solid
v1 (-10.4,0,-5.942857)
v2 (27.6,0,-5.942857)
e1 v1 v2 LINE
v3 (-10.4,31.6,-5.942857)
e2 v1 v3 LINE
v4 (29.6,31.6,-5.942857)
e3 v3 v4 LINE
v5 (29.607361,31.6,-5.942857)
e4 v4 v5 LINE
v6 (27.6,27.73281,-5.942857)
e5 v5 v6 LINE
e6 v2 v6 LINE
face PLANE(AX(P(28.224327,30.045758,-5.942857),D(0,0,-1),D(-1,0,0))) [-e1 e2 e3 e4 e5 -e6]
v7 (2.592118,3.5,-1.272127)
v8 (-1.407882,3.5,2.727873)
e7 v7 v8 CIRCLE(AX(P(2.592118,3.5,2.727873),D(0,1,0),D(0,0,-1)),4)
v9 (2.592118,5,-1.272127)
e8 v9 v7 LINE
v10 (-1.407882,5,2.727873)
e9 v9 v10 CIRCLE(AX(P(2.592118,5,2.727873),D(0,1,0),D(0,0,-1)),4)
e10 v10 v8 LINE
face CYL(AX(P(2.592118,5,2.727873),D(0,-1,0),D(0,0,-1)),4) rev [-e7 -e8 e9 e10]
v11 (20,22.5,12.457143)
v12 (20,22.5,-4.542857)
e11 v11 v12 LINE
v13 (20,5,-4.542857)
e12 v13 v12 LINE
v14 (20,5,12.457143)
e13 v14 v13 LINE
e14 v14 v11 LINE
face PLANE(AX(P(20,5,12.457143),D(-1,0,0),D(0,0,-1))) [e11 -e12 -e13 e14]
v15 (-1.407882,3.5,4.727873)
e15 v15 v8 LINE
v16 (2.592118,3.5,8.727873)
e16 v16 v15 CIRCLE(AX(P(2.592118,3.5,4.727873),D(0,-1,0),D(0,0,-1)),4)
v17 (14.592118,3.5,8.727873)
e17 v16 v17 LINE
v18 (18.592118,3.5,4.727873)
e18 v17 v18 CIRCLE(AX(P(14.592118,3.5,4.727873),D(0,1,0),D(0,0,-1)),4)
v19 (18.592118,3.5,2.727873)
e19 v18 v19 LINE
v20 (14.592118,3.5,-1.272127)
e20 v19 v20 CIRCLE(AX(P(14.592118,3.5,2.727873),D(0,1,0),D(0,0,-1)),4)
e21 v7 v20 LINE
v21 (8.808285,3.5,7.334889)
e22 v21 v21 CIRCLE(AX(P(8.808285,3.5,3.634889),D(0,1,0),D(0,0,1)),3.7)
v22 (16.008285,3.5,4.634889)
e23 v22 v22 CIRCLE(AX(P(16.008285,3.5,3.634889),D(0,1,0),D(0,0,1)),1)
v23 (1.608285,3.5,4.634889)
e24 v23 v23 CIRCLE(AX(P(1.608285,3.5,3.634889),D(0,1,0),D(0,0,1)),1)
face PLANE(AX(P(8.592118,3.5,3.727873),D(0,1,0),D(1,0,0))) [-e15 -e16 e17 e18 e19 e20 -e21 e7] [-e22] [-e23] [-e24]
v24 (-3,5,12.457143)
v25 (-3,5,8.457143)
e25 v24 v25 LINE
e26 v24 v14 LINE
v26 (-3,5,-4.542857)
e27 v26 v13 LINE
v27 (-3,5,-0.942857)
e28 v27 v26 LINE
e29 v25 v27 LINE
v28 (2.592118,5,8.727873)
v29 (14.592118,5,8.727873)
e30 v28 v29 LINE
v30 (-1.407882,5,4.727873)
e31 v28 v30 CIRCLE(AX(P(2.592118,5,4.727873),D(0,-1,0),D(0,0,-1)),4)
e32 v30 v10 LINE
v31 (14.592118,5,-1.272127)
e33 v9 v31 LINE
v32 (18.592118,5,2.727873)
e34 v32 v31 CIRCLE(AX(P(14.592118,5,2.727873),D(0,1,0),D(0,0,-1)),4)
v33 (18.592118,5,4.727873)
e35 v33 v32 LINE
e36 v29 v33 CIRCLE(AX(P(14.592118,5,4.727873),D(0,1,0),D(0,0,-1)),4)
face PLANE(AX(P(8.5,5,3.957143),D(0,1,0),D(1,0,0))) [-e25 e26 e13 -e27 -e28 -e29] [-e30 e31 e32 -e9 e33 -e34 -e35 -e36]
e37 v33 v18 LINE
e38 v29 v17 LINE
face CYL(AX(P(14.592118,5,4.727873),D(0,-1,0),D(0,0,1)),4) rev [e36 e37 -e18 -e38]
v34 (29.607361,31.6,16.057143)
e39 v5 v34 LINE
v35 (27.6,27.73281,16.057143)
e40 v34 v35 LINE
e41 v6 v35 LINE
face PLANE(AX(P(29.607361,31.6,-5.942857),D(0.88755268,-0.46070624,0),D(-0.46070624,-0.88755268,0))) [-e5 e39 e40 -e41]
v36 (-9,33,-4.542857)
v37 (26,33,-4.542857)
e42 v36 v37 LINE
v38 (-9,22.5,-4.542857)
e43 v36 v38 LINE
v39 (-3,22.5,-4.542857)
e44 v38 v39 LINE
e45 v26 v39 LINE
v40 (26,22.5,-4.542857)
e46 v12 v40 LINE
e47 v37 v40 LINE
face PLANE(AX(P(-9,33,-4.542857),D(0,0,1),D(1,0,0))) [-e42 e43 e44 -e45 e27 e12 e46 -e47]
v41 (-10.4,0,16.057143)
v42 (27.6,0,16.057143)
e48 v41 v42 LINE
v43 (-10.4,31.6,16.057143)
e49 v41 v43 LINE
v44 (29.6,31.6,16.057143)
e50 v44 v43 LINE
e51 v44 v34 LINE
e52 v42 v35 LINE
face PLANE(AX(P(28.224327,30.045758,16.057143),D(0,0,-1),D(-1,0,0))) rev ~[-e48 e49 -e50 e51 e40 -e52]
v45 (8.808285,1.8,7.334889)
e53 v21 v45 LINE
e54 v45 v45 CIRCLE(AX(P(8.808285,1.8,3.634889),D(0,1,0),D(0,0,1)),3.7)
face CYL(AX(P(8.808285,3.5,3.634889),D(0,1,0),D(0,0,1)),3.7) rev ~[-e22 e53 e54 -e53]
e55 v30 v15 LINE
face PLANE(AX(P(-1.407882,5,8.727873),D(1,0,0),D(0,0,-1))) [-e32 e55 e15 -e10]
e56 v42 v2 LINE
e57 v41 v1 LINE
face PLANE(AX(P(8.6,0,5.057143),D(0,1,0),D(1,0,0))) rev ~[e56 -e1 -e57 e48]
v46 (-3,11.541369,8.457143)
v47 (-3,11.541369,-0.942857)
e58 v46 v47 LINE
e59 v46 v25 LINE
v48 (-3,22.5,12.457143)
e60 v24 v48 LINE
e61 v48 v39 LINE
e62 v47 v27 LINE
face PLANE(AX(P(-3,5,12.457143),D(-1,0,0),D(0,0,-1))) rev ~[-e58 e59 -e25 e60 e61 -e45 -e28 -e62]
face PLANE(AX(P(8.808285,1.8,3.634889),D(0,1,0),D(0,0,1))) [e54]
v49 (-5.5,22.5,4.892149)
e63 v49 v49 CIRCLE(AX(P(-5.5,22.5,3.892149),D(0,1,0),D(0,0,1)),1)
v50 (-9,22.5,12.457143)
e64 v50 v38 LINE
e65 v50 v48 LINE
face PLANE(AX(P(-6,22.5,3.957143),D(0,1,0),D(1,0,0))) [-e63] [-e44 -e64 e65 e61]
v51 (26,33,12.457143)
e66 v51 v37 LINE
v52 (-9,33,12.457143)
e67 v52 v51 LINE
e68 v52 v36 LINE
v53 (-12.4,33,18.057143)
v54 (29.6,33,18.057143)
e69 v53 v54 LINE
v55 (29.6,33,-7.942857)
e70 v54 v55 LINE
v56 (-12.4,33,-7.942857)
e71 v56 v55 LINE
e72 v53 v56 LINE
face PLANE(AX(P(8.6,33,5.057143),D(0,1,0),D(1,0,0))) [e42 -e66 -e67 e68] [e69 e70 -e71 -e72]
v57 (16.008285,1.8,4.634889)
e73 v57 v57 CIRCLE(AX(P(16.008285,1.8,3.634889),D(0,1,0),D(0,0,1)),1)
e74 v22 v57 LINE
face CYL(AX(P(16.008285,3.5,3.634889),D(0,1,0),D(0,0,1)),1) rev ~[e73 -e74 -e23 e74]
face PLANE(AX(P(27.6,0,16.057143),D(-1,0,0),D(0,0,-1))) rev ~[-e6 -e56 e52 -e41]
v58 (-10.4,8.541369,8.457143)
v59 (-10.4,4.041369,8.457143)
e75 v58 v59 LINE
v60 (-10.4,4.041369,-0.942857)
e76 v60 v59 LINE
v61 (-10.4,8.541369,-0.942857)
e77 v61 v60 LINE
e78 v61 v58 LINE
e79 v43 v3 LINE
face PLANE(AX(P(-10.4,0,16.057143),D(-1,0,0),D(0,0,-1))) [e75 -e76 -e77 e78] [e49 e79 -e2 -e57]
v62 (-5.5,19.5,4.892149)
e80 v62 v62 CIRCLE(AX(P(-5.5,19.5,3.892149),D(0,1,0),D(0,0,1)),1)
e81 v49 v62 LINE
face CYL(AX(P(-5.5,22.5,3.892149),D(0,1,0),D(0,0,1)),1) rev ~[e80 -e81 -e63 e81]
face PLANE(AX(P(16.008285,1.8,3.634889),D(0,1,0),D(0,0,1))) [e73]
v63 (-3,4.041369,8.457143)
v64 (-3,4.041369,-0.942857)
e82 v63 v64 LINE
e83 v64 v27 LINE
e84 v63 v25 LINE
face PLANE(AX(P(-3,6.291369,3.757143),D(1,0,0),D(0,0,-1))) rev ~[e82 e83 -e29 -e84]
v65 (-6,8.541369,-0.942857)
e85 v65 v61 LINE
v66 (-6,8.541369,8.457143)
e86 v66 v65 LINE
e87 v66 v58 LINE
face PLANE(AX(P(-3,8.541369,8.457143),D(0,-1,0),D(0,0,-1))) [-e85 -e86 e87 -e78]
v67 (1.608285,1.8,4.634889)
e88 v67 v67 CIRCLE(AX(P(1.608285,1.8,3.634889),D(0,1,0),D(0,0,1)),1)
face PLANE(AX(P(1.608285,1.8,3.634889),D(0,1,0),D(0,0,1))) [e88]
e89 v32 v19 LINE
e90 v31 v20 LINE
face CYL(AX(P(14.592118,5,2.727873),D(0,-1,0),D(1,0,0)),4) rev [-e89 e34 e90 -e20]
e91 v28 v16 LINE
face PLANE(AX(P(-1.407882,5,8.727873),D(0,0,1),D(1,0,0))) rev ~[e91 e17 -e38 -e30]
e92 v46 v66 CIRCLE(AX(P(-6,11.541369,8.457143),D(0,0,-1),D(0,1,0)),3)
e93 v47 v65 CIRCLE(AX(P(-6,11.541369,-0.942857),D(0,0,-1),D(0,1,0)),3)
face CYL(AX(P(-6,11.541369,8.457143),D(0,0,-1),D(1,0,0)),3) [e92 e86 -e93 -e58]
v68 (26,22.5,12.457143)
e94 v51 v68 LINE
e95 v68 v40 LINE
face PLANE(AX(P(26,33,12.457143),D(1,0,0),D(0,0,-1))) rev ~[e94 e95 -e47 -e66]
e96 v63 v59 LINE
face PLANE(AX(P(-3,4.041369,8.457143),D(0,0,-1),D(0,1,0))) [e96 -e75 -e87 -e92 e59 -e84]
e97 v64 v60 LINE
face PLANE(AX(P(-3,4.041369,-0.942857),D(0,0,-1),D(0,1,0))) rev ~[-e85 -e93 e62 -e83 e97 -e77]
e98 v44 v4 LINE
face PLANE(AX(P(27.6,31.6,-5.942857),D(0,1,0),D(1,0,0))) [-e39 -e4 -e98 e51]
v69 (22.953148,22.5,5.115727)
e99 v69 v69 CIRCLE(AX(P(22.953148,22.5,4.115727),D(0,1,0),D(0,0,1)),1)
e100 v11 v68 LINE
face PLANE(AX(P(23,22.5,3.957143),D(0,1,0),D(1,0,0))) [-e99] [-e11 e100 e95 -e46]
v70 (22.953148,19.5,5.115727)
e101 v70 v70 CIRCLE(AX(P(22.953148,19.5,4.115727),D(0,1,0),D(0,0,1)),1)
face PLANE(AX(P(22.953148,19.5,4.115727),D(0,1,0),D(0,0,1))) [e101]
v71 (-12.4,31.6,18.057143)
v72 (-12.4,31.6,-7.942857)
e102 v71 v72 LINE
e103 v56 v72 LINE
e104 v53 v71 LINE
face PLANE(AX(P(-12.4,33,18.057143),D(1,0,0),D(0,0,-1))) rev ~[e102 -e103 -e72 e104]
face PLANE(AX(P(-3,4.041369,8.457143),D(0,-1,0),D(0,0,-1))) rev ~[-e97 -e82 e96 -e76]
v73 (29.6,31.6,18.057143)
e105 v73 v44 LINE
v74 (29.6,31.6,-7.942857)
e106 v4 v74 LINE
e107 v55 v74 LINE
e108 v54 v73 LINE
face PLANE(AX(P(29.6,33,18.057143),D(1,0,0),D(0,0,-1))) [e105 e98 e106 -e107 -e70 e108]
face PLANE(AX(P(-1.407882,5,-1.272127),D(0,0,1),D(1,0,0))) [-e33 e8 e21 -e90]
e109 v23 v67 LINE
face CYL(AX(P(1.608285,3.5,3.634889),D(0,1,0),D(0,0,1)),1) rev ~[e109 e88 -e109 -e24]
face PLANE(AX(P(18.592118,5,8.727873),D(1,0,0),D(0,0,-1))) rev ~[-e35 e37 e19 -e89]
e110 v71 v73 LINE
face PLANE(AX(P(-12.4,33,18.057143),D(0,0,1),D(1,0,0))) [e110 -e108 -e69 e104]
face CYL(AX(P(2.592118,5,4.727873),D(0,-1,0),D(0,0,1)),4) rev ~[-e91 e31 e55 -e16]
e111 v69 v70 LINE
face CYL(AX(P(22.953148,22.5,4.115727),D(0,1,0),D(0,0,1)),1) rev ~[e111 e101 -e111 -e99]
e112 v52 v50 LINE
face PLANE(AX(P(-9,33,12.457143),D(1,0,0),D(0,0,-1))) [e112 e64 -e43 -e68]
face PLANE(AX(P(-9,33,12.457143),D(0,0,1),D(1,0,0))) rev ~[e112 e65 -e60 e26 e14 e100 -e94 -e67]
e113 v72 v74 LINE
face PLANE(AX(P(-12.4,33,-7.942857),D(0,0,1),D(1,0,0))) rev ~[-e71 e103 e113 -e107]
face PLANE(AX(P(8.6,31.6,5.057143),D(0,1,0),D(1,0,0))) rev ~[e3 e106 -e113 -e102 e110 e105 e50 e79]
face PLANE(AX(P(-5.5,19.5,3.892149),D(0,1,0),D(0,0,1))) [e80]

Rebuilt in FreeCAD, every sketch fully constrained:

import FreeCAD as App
import Part
import Sketcher


def edges_at(feature, points):
    """Names of the edges that pass closest to the given points."""
    edges = feature.Shape.Edges
    near = lambda p: min(range(len(edges)), key=lambda i: edges[i].distToShape(Part.Vertex(*p))[0])
    return sorted({f"Edge{near(p) + 1}" for p in points})


def add_polygon(sketch, points):
    """Adds a closed chain of lines whose ends are joined by coincident constraints."""
    first, n = sketch.GeometryCount, len(points)
    for a, b in zip(points, points[1:] + points[:1]):
        sketch.addGeometry(Part.LineSegment(App.Vector(*a, 0), App.Vector(*b, 0)), False)
    for i in range(n):
        sketch.addConstraint(Sketcher.Constraint("Coincident", first + i, 2, first + (i + 1) % n, 1))

doc = App.newDocument("Part")
body = doc.addObject("PartDesign::Body", "Body")

# Sketch on XZ plane
sketch1 = body.newObject("Sketcher::SketchObject", "Sketch")
sketch1.AttachmentSupport = (doc.getObject("XZ_Plane"), [""])
sketch1.MapMode = "FlatFace"
add_polygon(sketch1, [(-10.4, -5.942857), (-10.4, 16.057143), (27.6, 16.057143), (27.6, -5.942857)])  # lines 0-3
sketch1.addConstraint(Sketcher.Constraint("Vertical", 0))
sketch1.addConstraint(Sketcher.Constraint("Horizontal", 1))
sketch1.addConstraint(Sketcher.Constraint("Vertical", 2))
sketch1.addConstraint(Sketcher.Constraint("Horizontal", 3))
sketch1.addConstraint(Sketcher.Constraint("DistanceX", 1, 1, 1, 2, 38.0))
sketch1.addConstraint(Sketcher.Constraint("DistanceY", 0, 1, 0, 2, 22.0))
sketch1.addConstraint(Sketcher.Constraint("DistanceX", 0, 2, -1, 1, 10.4))
sketch1.addConstraint(Sketcher.Constraint("DistanceY", -1, 1, 0, 2, 16.057143))
pad1 = body.newObject("PartDesign::Pad", "Pad")
pad1.Profile = sketch1
pad1.Length = 33
pad1.Reversed = True

# Sketch on XZ plane
sketch2 = body.newObject("Sketcher::SketchObject", "Sketch001")
sketch2.AttachmentSupport = (doc.getObject("XZ_Plane"), [""])
sketch2.MapMode = "FlatFace"
sketch2.AttachmentOffset = App.Placement(App.Vector(0, 0, -33), App.Rotation())
add_polygon(sketch2, [(-9, -4.542857), (-9, 12.457143), (26, 12.457143), (26, -4.542857)])  # lines 0-3
sketch2.addConstraint(Sketcher.Constraint("Vertical", 0))
sketch2.addConstraint(Sketcher.Constraint("Horizontal", 1))
sketch2.addConstraint(Sketcher.Constraint("Vertical", 2))
sketch2.addConstraint(Sketcher.Constraint("Horizontal", 3))
sketch2.addConstraint(Sketcher.Constraint("DistanceX", 1, 1, 1, 2, 35.0))
sketch2.addConstraint(Sketcher.Constraint("DistanceY", 0, 1, 0, 2, 17.0))
sketch2.addConstraint(Sketcher.Constraint("DistanceX", 0, 2, -1, 1, 9.0))
sketch2.addConstraint(Sketcher.Constraint("DistanceY", -1, 1, 0, 2, 12.457143))
pocket1 = body.newObject("PartDesign::Pocket", "Pocket")
pocket1.Profile = sketch2
pocket1.Length = 28
pocket1.Reversed = True

# Sketch on XZ plane
sketch3 = body.newObject("Sketcher::SketchObject", "Sketch002")
sketch3.AttachmentSupport = (doc.getObject("XZ_Plane"), [""])
sketch3.MapMode = "FlatFace"
sketch3.AttachmentOffset = App.Placement(App.Vector(0, 0, -5), App.Rotation())
add_polygon(sketch3, [(-9, -4.542857), (-9, 12.457143), (-3, 12.457143), (-3, -4.542857)])  # lines 0-3
add_polygon(sketch3, [(20, -4.542857), (20, 12.457143), (26, 12.457143), (26, -4.542857)])  # lines 4-7
sketch3.addConstraint(Sketcher.Constraint("Vertical", 0))
sketch3.addConstraint(Sketcher.Constraint("Horizontal", 1))
sketch3.addConstraint(Sketcher.Constraint("Vertical", 2))
sketch3.addConstraint(Sketcher.Constraint("Horizontal", 3))
sketch3.addConstraint(Sketcher.Constraint("Vertical", 4))
sketch3.addConstraint(Sketcher.Constraint("Horizontal", 5))
sketch3.addConstraint(Sketcher.Constraint("Vertical", 6))
sketch3.addConstraint(Sketcher.Constraint("Horizontal", 7))
sketch3.addConstraint(Sketcher.Constraint("Horizontal", 1, 2, 4, 2))
sketch3.addConstraint(Sketcher.Constraint("Horizontal", 3, 2, 6, 2))
sketch3.addConstraint(Sketcher.Constraint("Equal", 3, 5))
sketch3.addConstraint(Sketcher.Constraint("DistanceX", 1, 1, 1, 2, 6.0))
sketch3.addConstraint(Sketcher.Constraint("DistanceY", 0, 1, 0, 2, 17.0))
sketch3.addConstraint(Sketcher.Constraint("DistanceX", 0, 2, -1, 1, 9.0))
sketch3.addConstraint(Sketcher.Constraint("DistanceX", -1, 1, 4, 2, 20.0))
sketch3.addConstraint(Sketcher.Constraint("DistanceY", -1, 1, 0, 2, 12.457143))
pad2 = body.newObject("PartDesign::Pad", "Pad001")
pad2.Profile = sketch3
pad2.Length = 17.5
pad2.Reversed = True

# Sketch on XZ plane
sketch4 = body.newObject("Sketcher::SketchObject", "Sketch003")
sketch4.AttachmentSupport = (doc.getObject("XZ_Plane"), [""])
sketch4.MapMode = "FlatFace"
sketch4.AttachmentOffset = App.Placement(App.Vector(0, 0, -33), App.Rotation())
add_polygon(sketch4, [(-12.4, -7.942857), (-12.4, 18.057143), (29.6, 18.057143), (29.6, -7.942857)])  # lines 0-3
add_polygon(sketch4, [(27.6, 16.057143), (-10.4, 16.057143), (-10.4, -5.942857), (27.6, -5.942857)])  # lines 4-7
sketch4.addConstraint(Sketcher.Constraint("Vertical", 0))
sketch4.addConstraint(Sketcher.Constraint("Horizontal", 1))
sketch4.addConstraint(Sketcher.Constraint("Vertical", 2))
sketch4.addConstraint(Sketcher.Constraint("Horizontal", 3))
sketch4.addConstraint(Sketcher.Constraint("Horizontal", 4))
sketch4.addConstraint(Sketcher.Constraint("Vertical", 5))
sketch4.addConstraint(Sketcher.Constraint("Horizontal", 6))
sketch4.addConstraint(Sketcher.Constraint("Vertical", 7))
sketch4.addConstraint(Sketcher.Constraint("DistanceX", 1, 1, 1, 2, 42.0))
sketch4.addConstraint(Sketcher.Constraint("DistanceX", 4, 2, 4, 1, 38.0))
sketch4.addConstraint(Sketcher.Constraint("DistanceY", 0, 1, 0, 2, 26.0))
sketch4.addConstraint(Sketcher.Constraint("DistanceY", 5, 2, 5, 1, 22.0))
sketch4.addConstraint(Sketcher.Constraint("DistanceX", 0, 2, 4, 2, 2.0))
sketch4.addConstraint(Sketcher.Constraint("DistanceY", 4, 2, 0, 2, 2.0))
sketch4.addConstraint(Sketcher.Constraint("DistanceX", 0, 2, -1, 1, 12.4))
sketch4.addConstraint(Sketcher.Constraint("DistanceY", -1, 1, 0, 2, 18.057143))
pad3 = body.newObject("PartDesign::Pad", "Pad002")
pad3.Profile = sketch4
pad3.Length = 1.4

# Sketch on XZ plane
sketch5 = body.newObject("Sketcher::SketchObject", "Sketch004")
sketch5.AttachmentSupport = (doc.getObject("XZ_Plane"), [""])
sketch5.MapMode = "FlatFace"
sketch5.AttachmentOffset = App.Placement(App.Vector(0, 0, -22.5), App.Rotation())
sketch5.addGeometry(Part.Circle(App.Vector(-5.5, 3.892149, 0), App.Vector(0, 0, 1), 1), False)
sketch5.addConstraint(Sketcher.Constraint("Diameter", 0, 2.0))
sketch5.addConstraint(Sketcher.Constraint("DistanceX", 0, 3, -1, 1, 5.5))
sketch5.addConstraint(Sketcher.Constraint("DistanceY", -1, 1, 0, 3, 3.892149))
pocket2 = body.newObject("PartDesign::Pocket", "Pocket001")
pocket2.Profile = sketch5
pocket2.Length = 3
pocket2.Reversed = True

# Sketch on XZ plane
sketch6 = body.newObject("Sketcher::SketchObject", "Sketch005")
sketch6.AttachmentSupport = (doc.getObject("XZ_Plane"), [""])
sketch6.MapMode = "FlatFace"
sketch6.AttachmentOffset = App.Placement(App.Vector(0, 0, -22.5), App.Rotation())
sketch6.addGeometry(Part.Circle(App.Vector(22.953148, 4.115727, 0), App.Vector(0, 0, 1), 1), False)
sketch6.addConstraint(Sketcher.Constraint("Diameter", 0, 2.0))
sketch6.addConstraint(Sketcher.Constraint("DistanceX", -1, 1, 0, 3, 22.953148))
sketch6.addConstraint(Sketcher.Constraint("DistanceY", -1, 1, 0, 3, 4.115727))
pocket3 = body.newObject("PartDesign::Pocket", "Pocket002")
pocket3.Profile = sketch6
pocket3.Length = 3
pocket3.Reversed = True

# Sketch on YZ plane
sketch7 = body.newObject("Sketcher::SketchObject", "Sketch006")
sketch7.AttachmentSupport = (doc.getObject("YZ_Plane"), [""])
sketch7.MapMode = "FlatFace"
sketch7.AttachmentOffset = App.Placement(App.Vector(0, 0, -3), App.Rotation())
add_polygon(sketch7, [(8.541369, 8.457143), (4.041369, 8.457143), (4.041369, -0.942857), (8.541369, -0.942857)])  # lines 0-3
sketch7.addConstraint(Sketcher.Constraint("Horizontal", 0))
sketch7.addConstraint(Sketcher.Constraint("Vertical", 1))
sketch7.addConstraint(Sketcher.Constraint("Horizontal", 2))
sketch7.addConstraint(Sketcher.Constraint("Vertical", 3))
sketch7.addConstraint(Sketcher.Constraint("DistanceX", 0, 2, 0, 1, 4.5))
sketch7.addConstraint(Sketcher.Constraint("DistanceY", 1, 2, 1, 1, 9.4))
sketch7.addConstraint(Sketcher.Constraint("DistanceX", -1, 1, 0, 2, 4.041369))
sketch7.addConstraint(Sketcher.Constraint("DistanceY", -1, 1, 0, 2, 8.457143))
pocket4 = body.newObject("PartDesign::Pocket", "Pocket003")
pocket4.Profile = sketch7
pocket4.Length = 10

# Sketch on XZ plane
sketch8 = body.newObject("Sketcher::SketchObject", "Sketch007")
sketch8.AttachmentSupport = (doc.getObject("XZ_Plane"), [""])
sketch8.MapMode = "FlatFace"
sketch8.AttachmentOffset = App.Placement(App.Vector(0, 0, -5), App.Rotation())
add_polygon(sketch8, [(-1.407882, -1.272127), (-1.407882, 8.727873), (18.592118, 8.727873), (18.592118, -1.272127)])  # lines 0-3
sketch8.addConstraint(Sketcher.Constraint("Vertical", 0))
sketch8.addConstraint(Sketcher.Constraint("Horizontal", 1))
sketch8.addConstraint(Sketcher.Constraint("Vertical", 2))
sketch8.addConstraint(Sketcher.Constraint("Horizontal", 3))
sketch8.addConstraint(Sketcher.Constraint("DistanceX", 1, 1, 1, 2, 20.0))
sketch8.addConstraint(Sketcher.Constraint("DistanceY", 0, 1, 0, 2, 10.0))
sketch8.addConstraint(Sketcher.Constraint("DistanceX", 0, 2, -1, 1, 1.407882))
sketch8.addConstraint(Sketcher.Constraint("DistanceY", -1, 1, 0, 2, 8.727873))
pocket5 = body.newObject("PartDesign::Pocket", "Pocket004")
pocket5.Profile = sketch8
pocket5.Length = 1.5
pocket5.Reversed = True

# Sketch on XZ plane
sketch9 = body.newObject("Sketcher::SketchObject", "Sketch008")
sketch9.AttachmentSupport = (doc.getObject("XZ_Plane"), [""])
sketch9.MapMode = "FlatFace"
sketch9.AttachmentOffset = App.Placement(App.Vector(0, 0, -3.5), App.Rotation())
sketch9.addGeometry(Part.Circle(App.Vector(8.808285, 3.634889, 0), App.Vector(0, 0, 1), 3.7), False)
sketch9.addGeometry(Part.Circle(App.Vector(1.608285, 3.634889, 0), App.Vector(0, 0, 1), 1), False)
sketch9.addGeometry(Part.Circle(App.Vector(16.008285, 3.634889, 0), App.Vector(0, 0, 1), 1), False)
sketch9.addConstraint(Sketcher.Constraint("Equal", 1, 2))
sketch9.addConstraint(Sketcher.Constraint("Horizontal", 0, 3, 1, 3))
sketch9.addConstraint(Sketcher.Constraint("Horizontal", 1, 3, 2, 3))
sketch9.addConstraint(Sketcher.Constraint("Diameter", 1, 2.0))
sketch9.addConstraint(Sketcher.Constraint("Diameter", 0, 7.4))
sketch9.addConstraint(Sketcher.Constraint("DistanceX", 1, 3, 0, 3, 7.2))
sketch9.addConstraint(Sketcher.Constraint("DistanceX", 0, 3, 2, 3, 7.2))
sketch9.addConstraint(Sketcher.Constraint("DistanceY", -1, 1, 0, 3, 3.634889))
sketch9.addConstraint(Sketcher.Constraint("DistanceX", -1, 1, 0, 3, 8.808285))
pocket6 = body.newObject("PartDesign::Pocket", "Pocket005")
pocket6.Profile = sketch9
pocket6.Length = 1.7
pocket6.Reversed = True
doc.recompute()

fillet = body.newObject("PartDesign::Fillet", "Fillet")
fillet.Base = (pocket6, edges_at(pocket6, [
    (-1.408, 4.25, 8.728),
    (-1.408, 4.25, -1.272),
    (18.592, 4.25, -1.272),
    (18.592, 4.25, 8.728),
]))
fillet.Radius = 4

# Sketch on XY plane
sketch10 = body.newObject("Sketcher::SketchObject", "Sketch009")
sketch10.AttachmentSupport = (doc.getObject("XY_Plane"), [""])
sketch10.MapMode = "FlatFace"
sketch10.AttachmentOffset = App.Placement(App.Vector(0, 0, -5.942857), App.Rotation())
add_polygon(sketch10, [(29.607361, 31.6), (27.6, 31.6), (27.6, 27.73281)])  # lines 0-2
sketch10.addConstraint(Sketcher.Constraint("Horizontal", 0))
sketch10.addConstraint(Sketcher.Constraint("Vertical", 1))
sketch10.addConstraint(Sketcher.Constraint("DistanceX", -1, 1, 0, 2, 27.6))
sketch10.addConstraint(Sketcher.Constraint("DistanceY", -1, 1, 0, 2, 31.6))
sketch10.addConstraint(Sketcher.Constraint("DistanceX", 0, 2, 0, 1, 2.007361))
sketch10.addConstraint(Sketcher.Constraint("DistanceY", 1, 2, 1, 1, 3.86719))
pad4 = body.newObject("PartDesign::Pad", "Pad003")
pad4.Profile = sketch10
pad4.Length = 22
doc.recompute()

fillet2 = body.newObject("PartDesign::Fillet", "Fillet001")
fillet2.Base = (pad4, edges_at(pad4, [(-3, 8.541, 3.757)]))
fillet2.Radius = 3

doc.recompute()
